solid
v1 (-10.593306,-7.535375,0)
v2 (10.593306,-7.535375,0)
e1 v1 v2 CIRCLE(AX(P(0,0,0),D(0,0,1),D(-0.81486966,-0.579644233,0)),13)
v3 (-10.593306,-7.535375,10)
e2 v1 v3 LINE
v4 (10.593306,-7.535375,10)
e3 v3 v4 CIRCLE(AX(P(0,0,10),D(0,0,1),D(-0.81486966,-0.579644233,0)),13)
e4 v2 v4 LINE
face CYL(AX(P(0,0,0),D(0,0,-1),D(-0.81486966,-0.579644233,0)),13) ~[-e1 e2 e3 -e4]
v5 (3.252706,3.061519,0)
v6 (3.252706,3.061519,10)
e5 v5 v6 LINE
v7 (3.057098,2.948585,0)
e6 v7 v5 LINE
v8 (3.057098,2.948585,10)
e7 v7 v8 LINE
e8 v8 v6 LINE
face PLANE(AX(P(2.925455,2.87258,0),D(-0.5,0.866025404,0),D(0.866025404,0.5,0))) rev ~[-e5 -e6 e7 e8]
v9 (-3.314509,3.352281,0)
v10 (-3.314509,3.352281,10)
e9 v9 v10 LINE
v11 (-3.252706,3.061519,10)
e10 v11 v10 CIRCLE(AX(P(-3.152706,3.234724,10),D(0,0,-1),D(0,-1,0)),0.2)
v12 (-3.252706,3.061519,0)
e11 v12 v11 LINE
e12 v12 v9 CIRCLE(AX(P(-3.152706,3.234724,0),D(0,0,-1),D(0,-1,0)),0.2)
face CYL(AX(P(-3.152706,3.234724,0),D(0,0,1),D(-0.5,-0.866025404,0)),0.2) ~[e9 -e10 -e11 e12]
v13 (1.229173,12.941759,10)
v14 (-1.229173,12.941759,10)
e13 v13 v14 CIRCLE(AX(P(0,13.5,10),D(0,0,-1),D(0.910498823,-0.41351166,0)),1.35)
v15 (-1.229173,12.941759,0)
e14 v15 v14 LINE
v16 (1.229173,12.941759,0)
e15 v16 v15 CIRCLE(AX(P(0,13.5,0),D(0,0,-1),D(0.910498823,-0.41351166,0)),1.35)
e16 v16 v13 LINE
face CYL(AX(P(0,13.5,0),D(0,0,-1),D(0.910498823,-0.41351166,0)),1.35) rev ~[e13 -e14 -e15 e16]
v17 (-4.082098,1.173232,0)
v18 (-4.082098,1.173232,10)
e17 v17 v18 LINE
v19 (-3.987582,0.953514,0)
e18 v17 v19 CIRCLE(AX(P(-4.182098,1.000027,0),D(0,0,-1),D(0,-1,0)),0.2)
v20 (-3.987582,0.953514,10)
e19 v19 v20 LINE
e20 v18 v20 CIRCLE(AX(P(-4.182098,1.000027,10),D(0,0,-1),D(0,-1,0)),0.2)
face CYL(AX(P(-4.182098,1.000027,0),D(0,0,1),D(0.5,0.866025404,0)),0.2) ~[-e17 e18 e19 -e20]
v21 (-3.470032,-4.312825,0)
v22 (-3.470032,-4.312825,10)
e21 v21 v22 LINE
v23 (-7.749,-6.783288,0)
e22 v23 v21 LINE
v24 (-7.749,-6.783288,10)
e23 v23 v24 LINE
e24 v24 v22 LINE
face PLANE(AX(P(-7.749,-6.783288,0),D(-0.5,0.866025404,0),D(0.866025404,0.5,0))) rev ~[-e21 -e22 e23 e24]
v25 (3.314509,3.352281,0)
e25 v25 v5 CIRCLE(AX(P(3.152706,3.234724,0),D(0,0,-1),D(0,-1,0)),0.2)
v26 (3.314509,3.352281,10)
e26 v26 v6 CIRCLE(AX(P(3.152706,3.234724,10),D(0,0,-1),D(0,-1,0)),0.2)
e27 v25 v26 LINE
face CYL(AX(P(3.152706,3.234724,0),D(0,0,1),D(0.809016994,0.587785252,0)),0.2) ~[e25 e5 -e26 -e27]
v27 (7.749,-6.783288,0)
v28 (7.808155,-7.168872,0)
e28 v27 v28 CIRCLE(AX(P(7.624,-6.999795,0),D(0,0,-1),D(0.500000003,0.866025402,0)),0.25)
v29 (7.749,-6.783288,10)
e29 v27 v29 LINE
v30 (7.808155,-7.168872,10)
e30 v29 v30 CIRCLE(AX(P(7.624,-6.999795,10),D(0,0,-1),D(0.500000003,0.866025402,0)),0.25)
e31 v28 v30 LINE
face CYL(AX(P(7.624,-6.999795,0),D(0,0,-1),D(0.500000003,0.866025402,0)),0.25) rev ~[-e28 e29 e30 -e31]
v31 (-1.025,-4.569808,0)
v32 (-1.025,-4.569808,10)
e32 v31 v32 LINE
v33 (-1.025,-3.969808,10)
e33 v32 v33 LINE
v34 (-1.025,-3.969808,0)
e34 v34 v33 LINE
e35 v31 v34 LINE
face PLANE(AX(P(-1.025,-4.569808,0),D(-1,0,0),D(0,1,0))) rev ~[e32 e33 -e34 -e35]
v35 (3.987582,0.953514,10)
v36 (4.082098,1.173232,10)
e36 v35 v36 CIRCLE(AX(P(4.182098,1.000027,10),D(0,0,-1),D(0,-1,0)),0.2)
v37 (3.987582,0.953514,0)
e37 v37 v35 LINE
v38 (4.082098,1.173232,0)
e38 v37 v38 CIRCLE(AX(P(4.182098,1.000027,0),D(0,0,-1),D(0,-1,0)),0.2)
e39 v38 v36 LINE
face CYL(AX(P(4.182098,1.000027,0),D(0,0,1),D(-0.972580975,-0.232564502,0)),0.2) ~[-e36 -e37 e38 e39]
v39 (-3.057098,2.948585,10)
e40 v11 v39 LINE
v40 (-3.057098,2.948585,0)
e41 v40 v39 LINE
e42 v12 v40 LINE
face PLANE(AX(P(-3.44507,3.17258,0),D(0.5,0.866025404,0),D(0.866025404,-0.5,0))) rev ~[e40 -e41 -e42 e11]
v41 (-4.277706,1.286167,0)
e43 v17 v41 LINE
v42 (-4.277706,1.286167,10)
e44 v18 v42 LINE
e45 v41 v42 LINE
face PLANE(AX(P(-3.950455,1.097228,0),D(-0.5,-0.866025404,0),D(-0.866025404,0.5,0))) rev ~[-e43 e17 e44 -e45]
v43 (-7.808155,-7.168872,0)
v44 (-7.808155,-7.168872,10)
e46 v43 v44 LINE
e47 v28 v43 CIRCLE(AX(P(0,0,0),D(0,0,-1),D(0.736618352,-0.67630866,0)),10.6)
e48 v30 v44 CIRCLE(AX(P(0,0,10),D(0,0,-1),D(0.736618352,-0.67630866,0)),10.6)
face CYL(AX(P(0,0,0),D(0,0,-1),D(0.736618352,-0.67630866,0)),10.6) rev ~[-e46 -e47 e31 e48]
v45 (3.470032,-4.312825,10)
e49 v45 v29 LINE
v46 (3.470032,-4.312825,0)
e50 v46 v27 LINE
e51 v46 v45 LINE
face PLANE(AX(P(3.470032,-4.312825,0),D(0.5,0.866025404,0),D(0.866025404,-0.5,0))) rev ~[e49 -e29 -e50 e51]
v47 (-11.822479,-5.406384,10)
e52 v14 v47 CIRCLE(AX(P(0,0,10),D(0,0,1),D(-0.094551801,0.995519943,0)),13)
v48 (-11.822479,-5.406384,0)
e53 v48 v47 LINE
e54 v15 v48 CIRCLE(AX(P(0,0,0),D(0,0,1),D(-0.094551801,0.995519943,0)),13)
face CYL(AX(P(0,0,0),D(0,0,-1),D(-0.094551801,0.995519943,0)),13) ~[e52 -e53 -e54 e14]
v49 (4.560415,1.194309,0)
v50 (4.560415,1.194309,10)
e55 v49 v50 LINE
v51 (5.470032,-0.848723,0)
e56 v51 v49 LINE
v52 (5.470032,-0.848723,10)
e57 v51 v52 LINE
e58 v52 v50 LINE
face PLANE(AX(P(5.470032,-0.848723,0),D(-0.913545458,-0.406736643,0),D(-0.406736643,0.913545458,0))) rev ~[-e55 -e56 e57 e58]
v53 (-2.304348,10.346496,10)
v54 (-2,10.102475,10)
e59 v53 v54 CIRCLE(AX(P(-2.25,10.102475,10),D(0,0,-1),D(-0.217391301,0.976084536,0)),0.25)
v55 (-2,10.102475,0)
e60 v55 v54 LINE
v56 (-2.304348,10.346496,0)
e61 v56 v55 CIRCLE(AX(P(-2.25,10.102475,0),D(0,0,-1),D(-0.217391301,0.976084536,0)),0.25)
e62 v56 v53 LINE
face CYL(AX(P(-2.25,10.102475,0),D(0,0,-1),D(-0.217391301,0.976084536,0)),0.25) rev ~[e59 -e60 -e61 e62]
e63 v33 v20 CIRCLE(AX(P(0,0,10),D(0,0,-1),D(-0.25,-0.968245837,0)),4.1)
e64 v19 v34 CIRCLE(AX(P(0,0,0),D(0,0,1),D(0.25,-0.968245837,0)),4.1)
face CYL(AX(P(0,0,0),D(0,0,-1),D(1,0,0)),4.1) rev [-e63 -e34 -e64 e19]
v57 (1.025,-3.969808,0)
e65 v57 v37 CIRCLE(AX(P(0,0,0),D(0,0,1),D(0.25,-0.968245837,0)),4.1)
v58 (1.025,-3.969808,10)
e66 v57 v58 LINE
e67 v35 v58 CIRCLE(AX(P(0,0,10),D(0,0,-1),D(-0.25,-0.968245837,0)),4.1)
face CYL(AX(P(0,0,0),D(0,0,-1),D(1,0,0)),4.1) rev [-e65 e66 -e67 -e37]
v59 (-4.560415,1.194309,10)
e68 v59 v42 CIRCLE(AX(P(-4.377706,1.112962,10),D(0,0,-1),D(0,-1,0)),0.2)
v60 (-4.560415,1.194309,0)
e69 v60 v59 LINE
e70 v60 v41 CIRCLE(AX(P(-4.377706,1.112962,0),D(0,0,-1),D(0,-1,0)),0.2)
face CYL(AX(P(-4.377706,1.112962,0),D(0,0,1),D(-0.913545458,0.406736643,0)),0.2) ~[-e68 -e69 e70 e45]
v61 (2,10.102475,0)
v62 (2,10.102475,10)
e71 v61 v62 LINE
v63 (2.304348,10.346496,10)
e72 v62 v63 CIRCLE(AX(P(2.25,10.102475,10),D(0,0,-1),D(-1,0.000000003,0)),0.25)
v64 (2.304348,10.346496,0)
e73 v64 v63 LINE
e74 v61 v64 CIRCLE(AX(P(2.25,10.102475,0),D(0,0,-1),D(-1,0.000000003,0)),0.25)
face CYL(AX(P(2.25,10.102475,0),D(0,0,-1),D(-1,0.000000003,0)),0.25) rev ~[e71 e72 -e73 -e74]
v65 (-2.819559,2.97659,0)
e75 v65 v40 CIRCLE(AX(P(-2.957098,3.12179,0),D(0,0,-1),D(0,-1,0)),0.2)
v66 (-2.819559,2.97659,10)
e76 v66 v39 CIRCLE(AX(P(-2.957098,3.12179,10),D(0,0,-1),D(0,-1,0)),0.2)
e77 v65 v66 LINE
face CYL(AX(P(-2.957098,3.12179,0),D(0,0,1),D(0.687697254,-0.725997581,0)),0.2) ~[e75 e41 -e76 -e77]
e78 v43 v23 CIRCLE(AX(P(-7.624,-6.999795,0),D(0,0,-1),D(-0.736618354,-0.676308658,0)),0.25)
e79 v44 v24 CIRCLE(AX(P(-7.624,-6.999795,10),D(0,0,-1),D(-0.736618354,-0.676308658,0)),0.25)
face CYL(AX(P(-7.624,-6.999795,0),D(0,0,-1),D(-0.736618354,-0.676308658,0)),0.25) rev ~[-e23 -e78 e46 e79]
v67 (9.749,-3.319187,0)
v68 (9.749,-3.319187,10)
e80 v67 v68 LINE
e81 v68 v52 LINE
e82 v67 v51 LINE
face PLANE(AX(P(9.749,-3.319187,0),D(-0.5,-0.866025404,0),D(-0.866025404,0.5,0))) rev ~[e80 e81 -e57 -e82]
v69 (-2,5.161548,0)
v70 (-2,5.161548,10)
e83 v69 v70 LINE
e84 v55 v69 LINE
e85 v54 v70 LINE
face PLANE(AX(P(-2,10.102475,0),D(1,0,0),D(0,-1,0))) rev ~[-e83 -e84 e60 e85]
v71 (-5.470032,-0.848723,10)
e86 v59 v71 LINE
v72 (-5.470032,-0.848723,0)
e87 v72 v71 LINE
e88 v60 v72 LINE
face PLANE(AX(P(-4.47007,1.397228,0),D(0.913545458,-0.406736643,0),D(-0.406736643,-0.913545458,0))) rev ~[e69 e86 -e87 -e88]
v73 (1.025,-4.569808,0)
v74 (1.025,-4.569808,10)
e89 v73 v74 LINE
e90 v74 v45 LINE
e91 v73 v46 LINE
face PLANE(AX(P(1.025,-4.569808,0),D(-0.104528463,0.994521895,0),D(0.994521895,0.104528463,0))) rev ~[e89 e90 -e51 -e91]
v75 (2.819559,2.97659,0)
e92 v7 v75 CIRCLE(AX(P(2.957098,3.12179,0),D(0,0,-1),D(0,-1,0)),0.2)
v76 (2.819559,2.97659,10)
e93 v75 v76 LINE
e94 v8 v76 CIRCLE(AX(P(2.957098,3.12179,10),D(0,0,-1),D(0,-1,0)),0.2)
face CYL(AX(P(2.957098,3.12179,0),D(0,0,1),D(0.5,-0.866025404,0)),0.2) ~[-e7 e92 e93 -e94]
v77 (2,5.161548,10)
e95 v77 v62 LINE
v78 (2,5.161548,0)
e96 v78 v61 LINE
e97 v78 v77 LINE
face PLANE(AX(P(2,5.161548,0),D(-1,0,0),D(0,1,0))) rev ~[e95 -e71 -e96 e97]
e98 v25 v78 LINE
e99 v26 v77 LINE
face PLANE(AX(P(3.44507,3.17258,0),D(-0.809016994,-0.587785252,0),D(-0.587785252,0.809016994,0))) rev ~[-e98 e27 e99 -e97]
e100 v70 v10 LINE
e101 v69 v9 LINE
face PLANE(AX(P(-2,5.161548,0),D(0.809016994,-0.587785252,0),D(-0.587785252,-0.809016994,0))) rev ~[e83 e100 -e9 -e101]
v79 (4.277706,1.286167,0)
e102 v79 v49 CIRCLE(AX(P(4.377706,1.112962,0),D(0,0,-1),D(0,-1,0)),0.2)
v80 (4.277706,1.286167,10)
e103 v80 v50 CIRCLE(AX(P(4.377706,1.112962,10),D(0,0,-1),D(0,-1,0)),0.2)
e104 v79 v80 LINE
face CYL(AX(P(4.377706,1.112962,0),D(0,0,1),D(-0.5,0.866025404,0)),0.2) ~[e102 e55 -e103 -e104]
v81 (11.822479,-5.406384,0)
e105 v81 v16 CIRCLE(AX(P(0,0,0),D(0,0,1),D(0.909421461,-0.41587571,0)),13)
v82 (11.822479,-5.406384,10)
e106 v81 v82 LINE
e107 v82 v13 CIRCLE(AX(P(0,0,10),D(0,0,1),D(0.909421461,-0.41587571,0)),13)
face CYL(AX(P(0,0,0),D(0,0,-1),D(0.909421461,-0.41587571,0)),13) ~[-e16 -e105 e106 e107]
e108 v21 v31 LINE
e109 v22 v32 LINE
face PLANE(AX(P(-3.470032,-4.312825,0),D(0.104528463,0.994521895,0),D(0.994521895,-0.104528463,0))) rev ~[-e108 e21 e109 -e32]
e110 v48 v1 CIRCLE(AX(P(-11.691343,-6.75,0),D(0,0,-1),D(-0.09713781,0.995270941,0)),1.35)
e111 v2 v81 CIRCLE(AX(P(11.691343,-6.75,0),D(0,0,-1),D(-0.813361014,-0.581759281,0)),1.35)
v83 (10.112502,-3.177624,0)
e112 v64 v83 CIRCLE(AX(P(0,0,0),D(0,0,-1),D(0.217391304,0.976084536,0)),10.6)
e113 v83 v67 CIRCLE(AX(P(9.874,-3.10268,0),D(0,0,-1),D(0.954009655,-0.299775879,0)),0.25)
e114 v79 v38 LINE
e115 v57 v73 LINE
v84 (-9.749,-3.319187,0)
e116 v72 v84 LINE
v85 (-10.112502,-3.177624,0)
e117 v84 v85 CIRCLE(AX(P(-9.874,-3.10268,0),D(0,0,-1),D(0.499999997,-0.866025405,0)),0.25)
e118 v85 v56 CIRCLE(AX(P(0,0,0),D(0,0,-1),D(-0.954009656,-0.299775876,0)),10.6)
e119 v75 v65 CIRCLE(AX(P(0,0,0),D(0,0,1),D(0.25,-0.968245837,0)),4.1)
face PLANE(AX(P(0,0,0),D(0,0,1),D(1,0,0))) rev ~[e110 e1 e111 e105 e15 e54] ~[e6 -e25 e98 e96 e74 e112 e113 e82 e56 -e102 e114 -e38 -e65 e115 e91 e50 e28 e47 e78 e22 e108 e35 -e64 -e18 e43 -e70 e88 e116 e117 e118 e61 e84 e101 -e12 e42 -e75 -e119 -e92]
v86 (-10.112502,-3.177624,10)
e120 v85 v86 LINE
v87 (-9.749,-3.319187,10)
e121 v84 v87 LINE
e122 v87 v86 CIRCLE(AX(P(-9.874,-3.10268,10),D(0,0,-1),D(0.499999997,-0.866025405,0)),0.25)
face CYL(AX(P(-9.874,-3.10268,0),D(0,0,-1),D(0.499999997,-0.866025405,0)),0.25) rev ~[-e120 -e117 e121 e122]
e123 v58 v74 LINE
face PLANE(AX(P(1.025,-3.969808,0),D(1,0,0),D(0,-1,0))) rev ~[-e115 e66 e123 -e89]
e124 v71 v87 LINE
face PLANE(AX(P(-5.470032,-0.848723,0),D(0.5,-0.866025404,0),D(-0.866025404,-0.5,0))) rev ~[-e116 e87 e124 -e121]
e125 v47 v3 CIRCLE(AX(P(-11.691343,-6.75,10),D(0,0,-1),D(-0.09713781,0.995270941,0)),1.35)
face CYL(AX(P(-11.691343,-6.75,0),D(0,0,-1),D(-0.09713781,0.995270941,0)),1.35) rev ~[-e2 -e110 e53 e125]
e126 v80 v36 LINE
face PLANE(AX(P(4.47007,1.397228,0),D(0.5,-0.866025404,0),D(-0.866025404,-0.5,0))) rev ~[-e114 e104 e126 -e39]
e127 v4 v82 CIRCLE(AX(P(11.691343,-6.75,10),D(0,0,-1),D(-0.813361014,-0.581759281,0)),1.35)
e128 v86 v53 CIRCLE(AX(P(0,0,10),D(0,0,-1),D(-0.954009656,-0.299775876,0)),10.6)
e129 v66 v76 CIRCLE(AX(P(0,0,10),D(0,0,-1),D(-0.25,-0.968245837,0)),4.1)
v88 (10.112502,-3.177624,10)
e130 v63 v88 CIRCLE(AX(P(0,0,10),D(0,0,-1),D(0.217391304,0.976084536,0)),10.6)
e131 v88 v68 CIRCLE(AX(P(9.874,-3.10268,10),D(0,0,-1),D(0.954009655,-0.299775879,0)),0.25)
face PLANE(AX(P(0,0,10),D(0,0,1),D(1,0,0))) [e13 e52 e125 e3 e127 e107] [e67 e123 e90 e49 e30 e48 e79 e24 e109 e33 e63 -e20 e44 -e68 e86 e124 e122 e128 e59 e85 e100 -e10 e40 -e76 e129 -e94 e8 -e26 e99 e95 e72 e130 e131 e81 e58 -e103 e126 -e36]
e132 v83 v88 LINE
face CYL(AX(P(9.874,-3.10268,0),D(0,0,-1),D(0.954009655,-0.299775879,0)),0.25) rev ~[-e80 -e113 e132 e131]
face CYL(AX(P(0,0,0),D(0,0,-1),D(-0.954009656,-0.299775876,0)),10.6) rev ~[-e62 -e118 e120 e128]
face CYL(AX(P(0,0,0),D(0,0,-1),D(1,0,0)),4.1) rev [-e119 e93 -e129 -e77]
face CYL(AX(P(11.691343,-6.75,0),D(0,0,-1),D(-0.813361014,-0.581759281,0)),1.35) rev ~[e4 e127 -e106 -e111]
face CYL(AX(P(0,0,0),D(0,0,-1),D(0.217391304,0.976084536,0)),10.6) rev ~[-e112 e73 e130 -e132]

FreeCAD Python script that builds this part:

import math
import FreeCAD as App
import Part
import Sketcher
Q = App.Units.Quantity


def edges_at(feature, points):
    """Names of the edges that pass closest to the given points."""
    edges = feature.Shape.Edges
    near = lambda p: min(range(len(edges)), key=lambda i: edges[i].distToShape(Part.Vertex(*p))[0])
    return sorted({f"Edge{near(p) + 1}" for p in points})

doc = App.newDocument("Part")
body = doc.addObject("PartDesign::Body", "Body")

# Sketch on XY plane
sketch1 = doc.addObject("Sketcher::SketchObject", "Sketch")
body.addObject(sketch1)
sketch1.AttachmentSupport = (doc.XY_Plane, [""])
sketch1.MapMode = "FlatFace"
sketch1.addGeometry([
    Part.ArcOfCircle(Part.Circle(App.Vector(0, 0, 0), App.Vector(0, 0, 1), 13), math.radians(95.425524), math.radians(204.574476)),  # 0
    Part.ArcOfCircle(Part.Circle(App.Vector(-11.691343, -6.75, 0), App.Vector(0, 0, 1), 1.35), math.radians(-35.574376), math.radians(95.574376)),  # 1
    Part.ArcOfCircle(Part.Circle(App.Vector(0, 0, 0), App.Vector(0, 0, 1), 13), math.radians(-144.574476), math.radians(-35.425524)),  # 2
    Part.ArcOfCircle(Part.Circle(App.Vector(11.691343, -6.75, 0), App.Vector(0, 0, 1), 1.35), math.radians(84.425624), math.radians(215.574376)),  # 3
    Part.ArcOfCircle(Part.Circle(App.Vector(0, 0, 0), App.Vector(0, 0, 1), 13), math.radians(-24.574476), math.radians(84.574476)),  # 4
    Part.ArcOfCircle(Part.Circle(App.Vector(0, 13.5, 0), App.Vector(0, 0, 1), 1.35), math.radians(-155.574376), math.radians(-24.425624)),  # 5
    Part.Circle(App.Vector(0, 0, 0), App.Vector(0, 0, 1), 4.1),  # 6
], False)
sketch1.addConstraint([
    Sketcher.Constraint("Coincident", 0, 2, 1, 2),
    Sketcher.Constraint("Coincident", 1, 1, 2, 1),
    Sketcher.Constraint("Coincident", 2, 2, 3, 2),
    Sketcher.Constraint("Coincident", 3, 1, 4, 1),
    Sketcher.Constraint("Coincident", 4, 2, 5, 2),
    Sketcher.Constraint("Coincident", 5, 1, 0, 1),
    Sketcher.Constraint("Coincident", 0, 3, -1, 1),
    Sketcher.Constraint("Coincident", 2, 3, -1, 1),
    Sketcher.Constraint("Coincident", 4, 3, -1, 1),
    Sketcher.Constraint("Coincident", 6, 3, -1, 1),
    Sketcher.Constraint("Equal", 0, 2),
    Sketcher.Constraint("Equal", 1, 3),
    Sketcher.Constraint("Equal", 2, 4),
    Sketcher.Constraint("Equal", 3, 5),
    Sketcher.Constraint("Symmetric", 1, 3, 3, 3, -2),
    Sketcher.Constraint("PointOnObject", 5, 3, -2),
    Sketcher.Constraint("Radius", 0, 13.0),
    Sketcher.Constraint("Diameter", 6, 8.2),
    Sketcher.Constraint("Radius", 1, 1.35),
    Sketcher.Constraint("DistanceY", -1, 1, 5, 3, 13.5),
    Sketcher.Constraint("DistanceY", 1, 3, -1, 1, 6.75),
    Sketcher.Constraint("DistanceX", 0, 2, -1, 1, 11.822479),
])
pad1 = doc.addObject("PartDesign::Pad", "Pad")
body.addObject(pad1)
pad1.Profile = sketch1
pad1.Length = 10

# Sketch on XY plane
sketch2 = doc.addObject("Sketcher::SketchObject", "Sketch001")
body.addObject(sketch2)
sketch2.AttachmentSupport = (doc.XY_Plane, [""])
sketch2.MapMode = "FlatFace"
sketch2.addGeometry([
    Part.LineSegment(App.Vector(-3.470032, -4.312825, 0), App.Vector(-7.749, -6.783288, 0)),  # 0
    Part.ArcOfCircle(Part.Circle(App.Vector(-7.624, -6.999795, 0), App.Vector(0, 0, 1), 0.25), math.radians(120), math.radians(222.555858)),  # 1
    Part.ArcOfCircle(Part.Circle(App.Vector(0, 0, 0), App.Vector(0, 0, 1), 10.6), math.radians(-137.444142), math.radians(-42.555858)),  # 2
    Part.ArcOfCircle(Part.Circle(App.Vector(7.624, -6.999795, 0), App.Vector(0, 0, 1), 0.25), math.radians(-42.555858), math.radians(60)),  # 3
    Part.LineSegment(App.Vector(7.749, -6.783288, 0), App.Vector(3.470032, -4.312825, 0)),  # 4
    Part.LineSegment(App.Vector(3.470032, -4.312825, 0), App.Vector(1.025, -4.569808, 0)),  # 5
    Part.LineSegment(App.Vector(1.025, -4.569808, 0), App.Vector(1.025, -3.969808, 0)),  # 6
    Part.ArcOfCircle(Part.Circle(App.Vector(0, 0, 0), App.Vector(0, 0, 1), 4.1), math.radians(-104.477512), math.radians(-75.522488)),  # 7
    Part.LineSegment(App.Vector(-1.025, -3.969808, 0), App.Vector(-1.025, -4.569808, 0)),  # 8
    Part.LineSegment(App.Vector(-1.025, -4.569808, 0), App.Vector(-3.470032, -4.312825, 0)),  # 9
], False)
sketch2.addConstraint([
    Sketcher.Constraint("Tangent", 0, 2, 1, 1),
    Sketcher.Constraint("Tangent", 1, 2, 2, 1),
    Sketcher.Constraint("Tangent", 2, 2, 3, 1),
    Sketcher.Constraint("Tangent", 3, 2, 4, 1),
    Sketcher.Constraint("Coincident", 4, 2, 5, 1),
    Sketcher.Constraint("Coincident", 5, 2, 6, 1),
    Sketcher.Constraint("Coincident", 6, 2, 7, 2),
    Sketcher.Constraint("Coincident", 7, 1, 8, 1),
    Sketcher.Constraint("Coincident", 8, 2, 9, 1),
    Sketcher.Constraint("Coincident", 9, 2, 0, 1),
    Sketcher.Constraint("Vertical", 6),
    Sketcher.Constraint("Vertical", 8),
    Sketcher.Constraint("Coincident", 2, 3, -1, 1),
    Sketcher.Constraint("Coincident", 7, 3, -1, 1),
    Sketcher.Constraint("Equal", 1, 3),
    Sketcher.Constraint("Symmetric", 0, 2, 3, 2, -2),
    Sketcher.Constraint("Symmetric", 5, 2, 8, 2, -2),
    Sketcher.Constraint("Horizontal", 4, 2, 9, 2),
    Sketcher.Constraint("Radius", 2, 10.6),
    Sketcher.Constraint("Radius", 7, 4.1),
    Sketcher.Constraint("Angle", 0, Q("-150 deg")),
    Sketcher.Constraint("Angle", 5, Q("-174 deg")),
    Sketcher.Constraint("Radius", 1, 0.25),
    Sketcher.Constraint("DistanceY", 6, 1, 6, 2, 0.6),
    Sketcher.Constraint("DistanceX", 7, 1, 6, 2, 2.05),
    Sketcher.Constraint("DistanceX", 1, 3, -1, 1, 7.624),
])
pocket1 = doc.addObject("PartDesign::Pocket", "Pocket")
body.addObject(pocket1)
pocket1.Profile = sketch2
pocket1.Length = 10
pocket1.Reversed = True
doc.recompute()

polarpattern = doc.addObject("PartDesign::PolarPattern", "PolarPattern")
body.addObject(polarpattern)
polarpattern.Originals = [pocket1]
polarpattern.Axis = (doc.Z_Axis, [""])
polarpattern.Angle = 360
polarpattern.Occurrences = 3
body.Tip = polarpattern
doc.recompute()

fillet = doc.addObject("PartDesign::Fillet", "Fillet")
body.addObject(fillet)
fillet.Base = (polarpattern, edges_at(polarpattern, [
    (3.445, 3.173, 5),
    (2.925, 2.873, 5),
    (3.95, 1.097, 5),
    (4.47, 1.397, 5),
    (-4.47, 1.397, 5),
    (-3.95, 1.097, 5),
    (-2.925, 2.873, 5),
    (-3.445, 3.173, 5),
]))
fillet.Radius = 0.2

doc.recompute()
